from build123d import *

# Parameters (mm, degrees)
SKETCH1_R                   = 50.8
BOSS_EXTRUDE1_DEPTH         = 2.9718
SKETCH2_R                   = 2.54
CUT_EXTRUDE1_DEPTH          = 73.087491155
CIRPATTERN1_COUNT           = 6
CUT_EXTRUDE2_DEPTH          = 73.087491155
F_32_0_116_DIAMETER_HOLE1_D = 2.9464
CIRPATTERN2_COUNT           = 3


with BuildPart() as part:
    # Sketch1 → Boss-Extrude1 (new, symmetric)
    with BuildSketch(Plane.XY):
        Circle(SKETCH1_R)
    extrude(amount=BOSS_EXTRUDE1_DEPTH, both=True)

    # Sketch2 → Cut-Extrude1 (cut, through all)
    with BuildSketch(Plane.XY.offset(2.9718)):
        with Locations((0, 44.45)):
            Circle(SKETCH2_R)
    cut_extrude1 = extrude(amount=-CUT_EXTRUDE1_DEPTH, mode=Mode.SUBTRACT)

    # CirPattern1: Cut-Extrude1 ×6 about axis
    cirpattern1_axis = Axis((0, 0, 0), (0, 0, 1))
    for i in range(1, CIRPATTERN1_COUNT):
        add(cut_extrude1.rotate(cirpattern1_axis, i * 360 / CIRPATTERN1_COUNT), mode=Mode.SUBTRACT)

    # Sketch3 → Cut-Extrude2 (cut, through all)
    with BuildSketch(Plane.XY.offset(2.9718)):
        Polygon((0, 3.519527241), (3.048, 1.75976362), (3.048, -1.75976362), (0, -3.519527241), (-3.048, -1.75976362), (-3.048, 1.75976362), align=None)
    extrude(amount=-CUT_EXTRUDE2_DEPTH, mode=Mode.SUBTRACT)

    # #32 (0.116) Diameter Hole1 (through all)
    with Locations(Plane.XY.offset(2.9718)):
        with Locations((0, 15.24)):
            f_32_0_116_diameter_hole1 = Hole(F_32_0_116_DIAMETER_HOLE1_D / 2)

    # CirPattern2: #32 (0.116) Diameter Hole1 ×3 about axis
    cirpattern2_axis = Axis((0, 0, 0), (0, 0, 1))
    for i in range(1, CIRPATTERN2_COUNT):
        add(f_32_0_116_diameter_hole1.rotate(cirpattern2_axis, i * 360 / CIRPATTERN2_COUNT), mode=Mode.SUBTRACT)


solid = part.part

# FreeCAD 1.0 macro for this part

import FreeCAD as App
import Part
import Sketcher
Q = App.Units.Quantity

doc = App.newDocument("Part")
body = doc.addObject("PartDesign::Body", "Body")

# Sketch on XY plane
sketch1 = body.newObject("Sketcher::SketchObject", "Sketch")
sketch1.AttachmentSupport = (doc.getObject("XY_Plane"), [""])
sketch1.MapMode = "FlatFace"
sketch1.addGeometry(Part.Circle(App.Vector(0, 0, 0), App.Vector(0, 0, 1), 51), False)
sketch1.addConstraint(Sketcher.Constraint("Coincident", 0, 3, -1, 1))
sketch1.addConstraint(Sketcher.Constraint("Diameter", 0, Q("4 in")))
pad1 = body.newObject("PartDesign::Pad", "Pad")
pad1.Profile = sketch1
pad1.Length = Q("0.234 in")
pad1.Midplane = True

# Sketch on XY plane
sketch2 = body.newObject("Sketcher::SketchObject", "Sketch001")
sketch2.AttachmentSupport = (doc.getObject("XY_Plane"), [""])
sketch2.MapMode = "FlatFace"
sketch2.AttachmentOffset = App.Placement(App.Vector(0, 0, 0.117 * 25.4), App.Rotation())
sketch2.addGeometry(Part.Circle(App.Vector(0, 44.5, 0), App.Vector(0, 0, 1), 2.5), False)
sketch2.addConstraint(Sketcher.Constraint("PointOnObject", 0, 3, -2))
sketch2.addConstraint(Sketcher.Constraint("Diameter", 0, Q("0.2 in")))
sketch2.addConstraint(Sketcher.Constraint("DistanceY", -1, 1, 0, 3, Q("1.75 in")))
pocket1 = body.newObject("PartDesign::Pocket", "Pocket")
pocket1.Profile = sketch2
pocket1.Type = "ThroughAll"
doc.recompute()

polarpattern = body.newObject("PartDesign::PolarPattern", "PolarPattern")
polarpattern.Originals = [pocket1]
polarpattern.Axis = (doc.getObject("Z_Axis"), [""])
polarpattern.Angle = 360
polarpattern.Occurrences = 6
body.Tip = polarpattern

# Sketch on XY plane
sketch3 = body.newObject("Sketcher::SketchObject", "Sketch002")
sketch3.AttachmentSupport = (doc.getObject("XY_Plane"), [""])
sketch3.MapMode = "FlatFace"
sketch3.AttachmentOffset = App.Placement(App.Vector(0, 0, 0.117 * 25.4), App.Rotation())
sketch3.addGeometry(Part.LineSegment(App.Vector(3, 1.8, 0), App.Vector(0, 3.5, 0)), False)
sketch3.addGeometry(Part.LineSegment(App.Vector(0, 3.5, 0), App.Vector(-3, 1.8, 0)), False)
sketch3.addGeometry(Part.LineSegment(App.Vector(-3, 1.8, 0), App.Vector(-3, -1.8, 0)), False)
sketch3.addGeometry(Part.LineSegment(App.Vector(-3, -1.8, 0), App.Vector(0, -3.5, 0)), False)
sketch3.addGeometry(Part.LineSegment(App.Vector(0, -3.5, 0), App.Vector(3, -1.8, 0)), False)
sketch3.addGeometry(Part.LineSegment(App.Vector(3, -1.8, 0), App.Vector(3, 1.8, 0)), False)
sketch3.addConstraint(Sketcher.Constraint("Coincident", 0, 2, 1, 1))
sketch3.addConstraint(Sketcher.Constraint("Coincident", 1, 2, 2, 1))
sketch3.addConstraint(Sketcher.Constraint("Coincident", 2, 2, 3, 1))
sketch3.addConstraint(Sketcher.Constraint("Coincident", 3, 2, 4, 1))
sketch3.addConstraint(Sketcher.Constraint("Coincident", 4, 2, 5, 1))
sketch3.addConstraint(Sketcher.Constraint("Coincident", 5, 2, 0, 1))
sketch3.addConstraint(Sketcher.Constraint("Vertical", 2))
sketch3.addConstraint(Sketcher.Constraint("Vertical", 5))
sketch3.addConstraint(Sketcher.Constraint("Symmetric", 0, 2, 3, 2, -1, 1))
sketch3.addConstraint(Sketcher.Constraint("Symmetric", 1, 2, 4, 2, -1, 1))
sketch3.addConstraint(Sketcher.Constraint("PointOnObject", 0, 2, -2))
sketch3.addConstraint(Sketcher.Constraint("Parallel", 0, 3))
sketch3.addConstraint(Sketcher.Constraint("Horizontal", 2, 2, 4, 2))
sketch3.addConstraint(Sketcher.Constraint("Angle", 0, Q("150 deg")))
sketch3.addConstraint(Sketcher.Constraint("DistanceX", 1, 2, -1, 1, Q("0.12 in")))
sketch3.addConstraint(Sketcher.Constraint("DistanceY", 2, 2, 2, 1, 3.519527))
pocket2 = body.newObject("PartDesign::Pocket", "Pocket001")
pocket2.Profile = sketch3
pocket2.Type = "ThroughAll"

# Sketch on XY plane
sketch4 = body.newObject("Sketcher::SketchObject", "Sketch003")
sketch4.AttachmentSupport = (doc.getObject("XY_Plane"), [""])
sketch4.MapMode = "FlatFace"
sketch4.AttachmentOffset = App.Placement(App.Vector(0, 0, 0.117 * 25.4), App.Rotation())
sketch4.addGeometry(Part.Circle(App.Vector(0, 15.2, 0), App.Vector(0, 0, 1), 1.5), False)
sketch4.addConstraint(Sketcher.Constraint("PointOnObject", 0, 3, -2))
sketch4.addConstraint(Sketcher.Constraint("Diameter", 0, Q("0.116 in")))
sketch4.addConstraint(Sketcher.Constraint("DistanceY", -1, 1, 0, 3, Q("0.6 in")))
doc.recompute()
hole = body.newObject("PartDesign::Hole", "Hole")
hole.Profile = sketch4
hole.ThreadType = "None"
hole.Diameter = Q("0.116 in")
hole.DepthType = "ThroughAll"
doc.recompute()

polarpattern2 = body.newObject("PartDesign::PolarPattern", "PolarPattern001")
polarpattern2.Originals = [hole]
polarpattern2.Axis = (doc.getObject("Z_Axis"), [""])
polarpattern2.Angle = 360
polarpattern2.Occurrences = 3
body.Tip = polarpattern2

doc.recompute()
